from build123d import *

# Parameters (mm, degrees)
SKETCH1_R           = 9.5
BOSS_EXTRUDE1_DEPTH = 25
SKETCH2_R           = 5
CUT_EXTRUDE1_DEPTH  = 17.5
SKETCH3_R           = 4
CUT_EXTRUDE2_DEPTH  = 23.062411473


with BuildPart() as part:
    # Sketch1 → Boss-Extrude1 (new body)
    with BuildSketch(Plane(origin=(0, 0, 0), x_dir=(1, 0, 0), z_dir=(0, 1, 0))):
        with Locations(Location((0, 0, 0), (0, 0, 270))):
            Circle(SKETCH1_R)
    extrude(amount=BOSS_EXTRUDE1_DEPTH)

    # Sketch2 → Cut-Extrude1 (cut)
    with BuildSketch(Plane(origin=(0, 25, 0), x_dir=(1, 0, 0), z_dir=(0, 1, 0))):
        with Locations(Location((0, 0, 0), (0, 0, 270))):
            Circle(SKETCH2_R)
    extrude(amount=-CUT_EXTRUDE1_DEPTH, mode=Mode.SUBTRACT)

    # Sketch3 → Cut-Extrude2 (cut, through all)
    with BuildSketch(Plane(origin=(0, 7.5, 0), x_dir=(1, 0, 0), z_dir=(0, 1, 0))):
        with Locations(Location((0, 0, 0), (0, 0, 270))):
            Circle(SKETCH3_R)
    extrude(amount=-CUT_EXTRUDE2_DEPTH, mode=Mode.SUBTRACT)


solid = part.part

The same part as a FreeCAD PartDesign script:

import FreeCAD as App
import Part
import Sketcher

doc = App.newDocument("Part")
params = doc.addObject("Spreadsheet::Sheet", "Params")
for row, (alias, value) in enumerate([
    ("sketch1_diameter", "19 mm"),
    ("pad1_length", "25 mm"),
    ("sketch2_diameter", "10 mm"),
    ("pocket1_length", "17.5 mm"),
    ("sketch3_diameter", "8 mm"),
], start=1):
    params.set(f"A{row}", alias)
    params.set(f"B{row}", "=" + value)
    params.setAlias(f"B{row}", alias)

body = doc.addObject("PartDesign::Body", "Body")

sketch1 = body.newObject("Sketcher::SketchObject", "Sketch")
sketch1.AttachmentSupport = (doc.getObject("XZ_Plane"), [""])
sketch1.MapMode = "FlatFace"
sketch1.addGeometry(Part.Circle(App.Vector(0, 0, 0), App.Vector(0, 0, 1), 10), False)
sketch1.addConstraint(Sketcher.Constraint("Coincident", 0, 3, -1, 1))
sketch1.addConstraint(Sketcher.Constraint("Diameter", 0, 19.0))
sketch1.setExpression("Constraints[1]", "Params.sketch1_diameter")
pad1 = body.newObject("PartDesign::Pad", "Pad")
pad1.Profile = sketch1
pad1.setExpression("Length", "Params.pad1_length")
pad1.Reversed = True

sketch2 = body.newObject("Sketcher::SketchObject", "Sketch001")
sketch2.AttachmentSupport = (doc.getObject("XZ_Plane"), [""])
sketch2.MapMode = "FlatFace"
sketch2.AttachmentOffset = App.Placement(App.Vector(0, 0, -25), App.Rotation())
sketch2.addGeometry(Part.Circle(App.Vector(0, 0, 0), App.Vector(0, 0, 1), 5), False)
sketch2.addConstraint(Sketcher.Constraint("Coincident", 0, 3, -1, 1))
sketch2.addConstraint(Sketcher.Constraint("Diameter", 0, 10.0))
sketch2.setExpression("Constraints[1]", "Params.sketch2_diameter")
pocket1 = body.newObject("PartDesign::Pocket", "Pocket")
pocket1.Profile = sketch2
pocket1.setExpression("Length", "Params.pocket1_length")
pocket1.Reversed = True

sketch3 = body.newObject("Sketcher::SketchObject", "Sketch002")
sketch3.AttachmentSupport = (doc.getObject("XZ_Plane"), [""])
sketch3.MapMode = "FlatFace"
sketch3.AttachmentOffset = App.Placement(App.Vector(0, 0, -7.5), App.Rotation())
sketch3.addGeometry(Part.Circle(App.Vector(0, 0, 0), App.Vector(0, 0, 1), 4), False)
sketch3.addConstraint(Sketcher.Constraint("Coincident", 0, 3, -1, 1))
sketch3.addConstraint(Sketcher.Constraint("Diameter", 0, 8.0))
sketch3.setExpression("Constraints[1]", "Params.sketch3_diameter")
pocket2 = body.newObject("PartDesign::Pocket", "Pocket001")
pocket2.Profile = sketch3
pocket2.Type = "ThroughAll"
pocket2.Reversed = True

doc.recompute()
